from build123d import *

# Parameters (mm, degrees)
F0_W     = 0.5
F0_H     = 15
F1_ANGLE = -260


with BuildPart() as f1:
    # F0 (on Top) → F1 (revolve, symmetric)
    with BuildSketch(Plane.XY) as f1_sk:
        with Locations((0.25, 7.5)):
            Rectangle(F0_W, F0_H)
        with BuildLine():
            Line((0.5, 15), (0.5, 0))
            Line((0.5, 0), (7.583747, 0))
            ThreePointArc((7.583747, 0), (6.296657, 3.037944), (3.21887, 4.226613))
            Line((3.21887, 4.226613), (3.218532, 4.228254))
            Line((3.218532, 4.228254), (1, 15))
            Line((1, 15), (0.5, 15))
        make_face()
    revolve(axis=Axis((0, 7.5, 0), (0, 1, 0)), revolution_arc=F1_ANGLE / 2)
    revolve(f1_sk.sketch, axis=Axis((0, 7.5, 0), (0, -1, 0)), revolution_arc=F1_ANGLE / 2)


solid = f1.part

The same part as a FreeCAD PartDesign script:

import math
import FreeCAD as App
import Part
import Sketcher
Q = App.Units.Quantity

doc = App.newDocument("Part")
body = doc.addObject("PartDesign::Body", "Body")

# Sketch on XY plane
sketch1 = doc.addObject("Sketcher::SketchObject", "Sketch")
body.addObject(sketch1)
sketch1.AttachmentSupport = (doc.XY_Plane, [""])
sketch1.MapMode = "FlatFace"
sketch1.addGeometry([
    Part.LineSegment(App.Vector(0, 15, 0), App.Vector(0, 0, 0)),  # 0
    Part.LineSegment(App.Vector(0, 0, 0), App.Vector(7.583747, 0, 0)),  # 1
    Part.ArcOfCircle(Part.Circle(App.Vector(3.354945, 0.000001, 0), App.Vector(0, 0, 1), 4.228802), math.radians(-0.000018), math.radians(91.843996)),  # 2
    Part.LineSegment(App.Vector(3.21887, 4.226613, 0), App.Vector(3.218532, 4.228254, 0)),  # 3
    Part.LineSegment(App.Vector(3.218532, 4.228254, 0), App.Vector(1, 15, 0)),  # 4
    Part.LineSegment(App.Vector(1, 15, 0), App.Vector(0, 15, 0)),  # 5
], False)
sketch1.addConstraint([
    Sketcher.Constraint("Coincident", 0, 2, 1, 1),
    Sketcher.Constraint("Coincident", 1, 2, 2, 1),
    Sketcher.Constraint("Coincident", 2, 2, 3, 1),
    Sketcher.Constraint("Coincident", 3, 2, 4, 1),
    Sketcher.Constraint("Coincident", 4, 2, 5, 1),
    Sketcher.Constraint("Coincident", 5, 2, 0, 1),
    Sketcher.Constraint("Vertical", 0),
    Sketcher.Constraint("Horizontal", 1),
    Sketcher.Constraint("Horizontal", 5),
    Sketcher.Constraint("Coincident", 0, 2, -1, 1),
    Sketcher.Constraint("PointOnObject", 2, 3, -1),
    Sketcher.Constraint("DistanceX", 5, 2, 5, 1, Q("1 mm")),
    Sketcher.Constraint("DistanceY", 0, 2, 0, 1, Q("15 mm")),
    Sketcher.Constraint("Radius", 2, Q("4.228802 mm")),
    Sketcher.Constraint("DistanceX", 1, 1, 1, 2, Q("7.583747 mm")),
    Sketcher.Constraint("DistanceX", -1, 1, 2, 2, Q("3.21887 mm")),
    Sketcher.Constraint("DistanceX", 3, 2, 2, 2, Q("0.000338 mm")),
    Sketcher.Constraint("DistanceY", 2, 2, 3, 2, Q("0.001641 mm")),
])
revolution = doc.addObject("PartDesign::Revolution", "Revolution")
body.addObject(revolution)
revolution.Profile = sketch1
revolution.ReferenceAxis = (sketch1, ["V_Axis"])
revolution.Angle = 130
revolution.Reversed = True

# Sketch on XY plane
sketch2 = doc.addObject("Sketcher::SketchObject", "Sketch001")
body.addObject(sketch2)
sketch2.AttachmentSupport = (doc.XY_Plane, [""])
sketch2.MapMode = "FlatFace"
sketch2.addGeometry([
    Part.LineSegment(App.Vector(0, 15, 0), App.Vector(0, 0, 0)),  # 0
    Part.LineSegment(App.Vector(0, 0, 0), App.Vector(7.583747, 0, 0)),  # 1
    Part.ArcOfCircle(Part.Circle(App.Vector(3.354945, 0.000001, 0), App.Vector(0, 0, 1), 4.228802), math.radians(-0.000018), math.radians(91.843996)),  # 2
    Part.LineSegment(App.Vector(3.21887, 4.226613, 0), App.Vector(3.218532, 4.228254, 0)),  # 3
    Part.LineSegment(App.Vector(3.218532, 4.228254, 0), App.Vector(1, 15, 0)),  # 4
    Part.LineSegment(App.Vector(1, 15, 0), App.Vector(0, 15, 0)),  # 5
], False)
sketch2.addConstraint([
    Sketcher.Constraint("Coincident", 0, 2, 1, 1),
    Sketcher.Constraint("Coincident", 1, 2, 2, 1),
    Sketcher.Constraint("Coincident", 2, 2, 3, 1),
    Sketcher.Constraint("Coincident", 3, 2, 4, 1),
    Sketcher.Constraint("Coincident", 4, 2, 5, 1),
    Sketcher.Constraint("Coincident", 5, 2, 0, 1),
    Sketcher.Constraint("Vertical", 0),
    Sketcher.Constraint("Horizontal", 1),
    Sketcher.Constraint("Horizontal", 5),
    Sketcher.Constraint("Coincident", 0, 2, -1, 1),
    Sketcher.Constraint("PointOnObject", 2, 3, -1),
    Sketcher.Constraint("DistanceX", 5, 2, 5, 1, Q("1 mm")),
    Sketcher.Constraint("DistanceY", 0, 2, 0, 1, Q("15 mm")),
    Sketcher.Constraint("Radius", 2, Q("4.228802 mm")),
    Sketcher.Constraint("DistanceX", 1, 1, 1, 2, Q("7.583747 mm")),
    Sketcher.Constraint("DistanceX", -1, 1, 2, 2, Q("3.21887 mm")),
    Sketcher.Constraint("DistanceX", 3, 2, 2, 2, Q("0.000338 mm")),
    Sketcher.Constraint("DistanceY", 2, 2, 3, 2, Q("0.001641 mm")),
])
revolution2 = doc.addObject("PartDesign::Revolution", "Revolution001")
body.addObject(revolution2)
revolution2.Profile = sketch2
revolution2.ReferenceAxis = (sketch2, ["V_Axis"])
revolution2.Angle = 130

doc.recompute()
